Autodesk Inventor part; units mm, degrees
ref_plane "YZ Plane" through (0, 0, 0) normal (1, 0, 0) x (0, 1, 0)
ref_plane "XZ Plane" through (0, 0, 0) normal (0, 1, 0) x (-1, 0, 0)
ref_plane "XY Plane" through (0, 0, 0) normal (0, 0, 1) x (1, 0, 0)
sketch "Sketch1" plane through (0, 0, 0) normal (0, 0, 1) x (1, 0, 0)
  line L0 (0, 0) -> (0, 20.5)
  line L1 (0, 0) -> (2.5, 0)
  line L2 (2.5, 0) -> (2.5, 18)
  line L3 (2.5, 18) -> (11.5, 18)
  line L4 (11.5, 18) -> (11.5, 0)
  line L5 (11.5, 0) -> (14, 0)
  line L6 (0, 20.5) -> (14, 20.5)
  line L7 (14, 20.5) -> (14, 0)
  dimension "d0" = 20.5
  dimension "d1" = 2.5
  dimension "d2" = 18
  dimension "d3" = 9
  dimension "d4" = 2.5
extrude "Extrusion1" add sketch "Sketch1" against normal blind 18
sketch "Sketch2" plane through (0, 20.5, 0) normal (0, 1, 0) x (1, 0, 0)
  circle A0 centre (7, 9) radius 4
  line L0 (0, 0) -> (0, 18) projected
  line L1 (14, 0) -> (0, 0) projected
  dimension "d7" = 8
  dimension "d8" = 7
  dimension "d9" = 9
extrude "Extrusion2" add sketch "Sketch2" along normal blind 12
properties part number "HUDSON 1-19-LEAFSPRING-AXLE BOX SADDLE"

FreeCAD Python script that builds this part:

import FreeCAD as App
import Part
import Sketcher

V = App.Vector

doc = App.newDocument("Part")
body = doc.addObject("PartDesign::Body", "Body")

sketch1 = body.newObject("Sketcher::SketchObject", "Sketch")
sketch1.AttachmentSupport = (doc.getObject("XY_Plane"), [""])
sketch1.MapMode = "FlatFace"
sketch1.addGeometry(Part.LineSegment(V(0, 20.5, 0), V(0, 0, 0)), False)
sketch1.addGeometry(Part.LineSegment(V(0, 0, 0), V(2.5, 0, 0)), False)
sketch1.addGeometry(Part.LineSegment(V(2.5, 0, 0), V(2.5, 18, 0)), False)
sketch1.addGeometry(Part.LineSegment(V(2.5, 18, 0), V(11.5, 18, 0)), False)
sketch1.addGeometry(Part.LineSegment(V(11.5, 18, 0), V(11.5, 0, 0)), False)
sketch1.addGeometry(Part.LineSegment(V(11.5, 0, 0), V(14, 0, 0)), False)
sketch1.addGeometry(Part.LineSegment(V(14, 0, 0), V(14, 20.5, 0)), False)
sketch1.addGeometry(Part.LineSegment(V(14, 20.5, 0), V(0, 20.5, 0)), False)
sketch1.addConstraint(Sketcher.Constraint("Coincident", 0, 2, 1, 1))
sketch1.addConstraint(Sketcher.Constraint("Coincident", 1, 2, 2, 1))
sketch1.addConstraint(Sketcher.Constraint("Coincident", 2, 2, 3, 1))
sketch1.addConstraint(Sketcher.Constraint("Coincident", 3, 2, 4, 1))
sketch1.addConstraint(Sketcher.Constraint("Coincident", 4, 2, 5, 1))
sketch1.addConstraint(Sketcher.Constraint("Coincident", 5, 2, 6, 1))
sketch1.addConstraint(Sketcher.Constraint("Coincident", 6, 2, 7, 1))
sketch1.addConstraint(Sketcher.Constraint("Coincident", 7, 2, 0, 1))
sketch1.addConstraint(Sketcher.Constraint("Vertical", 0))
sketch1.addConstraint(Sketcher.Constraint("Horizontal", 1))
sketch1.addConstraint(Sketcher.Constraint("Vertical", 2))
sketch1.addConstraint(Sketcher.Constraint("Horizontal", 3))
sketch1.addConstraint(Sketcher.Constraint("Vertical", 4))
sketch1.addConstraint(Sketcher.Constraint("Horizontal", 5))
sketch1.addConstraint(Sketcher.Constraint("Vertical", 6))
sketch1.addConstraint(Sketcher.Constraint("Horizontal", 7))
sketch1.addConstraint(Sketcher.Constraint("Coincident", 0, 2, -1, 1))
sketch1.addConstraint(Sketcher.Constraint("PointOnObject", 4, 2, -1))
sketch1.addConstraint(Sketcher.Constraint("Equal", 1, 5))
sketch1.addConstraint(Sketcher.Constraint("DistanceX", 3, 1, 3, 2, 9.0))
sketch1.addConstraint(Sketcher.Constraint("DistanceY", 2, 1, 2, 2, 18.0))
sketch1.addConstraint(Sketcher.Constraint("DistanceX", 1, 1, 1, 2, 2.5))
sketch1.addConstraint(Sketcher.Constraint("DistanceY", 0, 2, 0, 1, 20.5))
pad1 = body.newObject("PartDesign::Pad", "Pad")
pad1.Profile = sketch1
pad1.Length = 18
pad1.Reversed = True

sketch2 = body.newObject("Sketcher::SketchObject", "Sketch001")
sketch2.AttachmentSupport = (doc.getObject("XZ_Plane"), [""])
sketch2.MapMode = "FlatFace"
sketch2.AttachmentOffset = App.Placement(V(0, 0, -20.5), App.Rotation())
sketch2.addGeometry(Part.Circle(V(7, -9, 0), V(0, 0, 1), 4), False)
sketch2.addConstraint(Sketcher.Constraint("Diameter", 0, 8.0))
sketch2.addConstraint(Sketcher.Constraint("DistanceX", -1, 1, 0, 3, 7.0))
sketch2.addConstraint(Sketcher.Constraint("DistanceY", 0, 3, -1, 1, 9.0))
pad2 = body.newObject("PartDesign::Pad", "Pad001")
pad2.Profile = sketch2
pad2.Length = 12
pad2.Reversed = True

doc.recompute()
